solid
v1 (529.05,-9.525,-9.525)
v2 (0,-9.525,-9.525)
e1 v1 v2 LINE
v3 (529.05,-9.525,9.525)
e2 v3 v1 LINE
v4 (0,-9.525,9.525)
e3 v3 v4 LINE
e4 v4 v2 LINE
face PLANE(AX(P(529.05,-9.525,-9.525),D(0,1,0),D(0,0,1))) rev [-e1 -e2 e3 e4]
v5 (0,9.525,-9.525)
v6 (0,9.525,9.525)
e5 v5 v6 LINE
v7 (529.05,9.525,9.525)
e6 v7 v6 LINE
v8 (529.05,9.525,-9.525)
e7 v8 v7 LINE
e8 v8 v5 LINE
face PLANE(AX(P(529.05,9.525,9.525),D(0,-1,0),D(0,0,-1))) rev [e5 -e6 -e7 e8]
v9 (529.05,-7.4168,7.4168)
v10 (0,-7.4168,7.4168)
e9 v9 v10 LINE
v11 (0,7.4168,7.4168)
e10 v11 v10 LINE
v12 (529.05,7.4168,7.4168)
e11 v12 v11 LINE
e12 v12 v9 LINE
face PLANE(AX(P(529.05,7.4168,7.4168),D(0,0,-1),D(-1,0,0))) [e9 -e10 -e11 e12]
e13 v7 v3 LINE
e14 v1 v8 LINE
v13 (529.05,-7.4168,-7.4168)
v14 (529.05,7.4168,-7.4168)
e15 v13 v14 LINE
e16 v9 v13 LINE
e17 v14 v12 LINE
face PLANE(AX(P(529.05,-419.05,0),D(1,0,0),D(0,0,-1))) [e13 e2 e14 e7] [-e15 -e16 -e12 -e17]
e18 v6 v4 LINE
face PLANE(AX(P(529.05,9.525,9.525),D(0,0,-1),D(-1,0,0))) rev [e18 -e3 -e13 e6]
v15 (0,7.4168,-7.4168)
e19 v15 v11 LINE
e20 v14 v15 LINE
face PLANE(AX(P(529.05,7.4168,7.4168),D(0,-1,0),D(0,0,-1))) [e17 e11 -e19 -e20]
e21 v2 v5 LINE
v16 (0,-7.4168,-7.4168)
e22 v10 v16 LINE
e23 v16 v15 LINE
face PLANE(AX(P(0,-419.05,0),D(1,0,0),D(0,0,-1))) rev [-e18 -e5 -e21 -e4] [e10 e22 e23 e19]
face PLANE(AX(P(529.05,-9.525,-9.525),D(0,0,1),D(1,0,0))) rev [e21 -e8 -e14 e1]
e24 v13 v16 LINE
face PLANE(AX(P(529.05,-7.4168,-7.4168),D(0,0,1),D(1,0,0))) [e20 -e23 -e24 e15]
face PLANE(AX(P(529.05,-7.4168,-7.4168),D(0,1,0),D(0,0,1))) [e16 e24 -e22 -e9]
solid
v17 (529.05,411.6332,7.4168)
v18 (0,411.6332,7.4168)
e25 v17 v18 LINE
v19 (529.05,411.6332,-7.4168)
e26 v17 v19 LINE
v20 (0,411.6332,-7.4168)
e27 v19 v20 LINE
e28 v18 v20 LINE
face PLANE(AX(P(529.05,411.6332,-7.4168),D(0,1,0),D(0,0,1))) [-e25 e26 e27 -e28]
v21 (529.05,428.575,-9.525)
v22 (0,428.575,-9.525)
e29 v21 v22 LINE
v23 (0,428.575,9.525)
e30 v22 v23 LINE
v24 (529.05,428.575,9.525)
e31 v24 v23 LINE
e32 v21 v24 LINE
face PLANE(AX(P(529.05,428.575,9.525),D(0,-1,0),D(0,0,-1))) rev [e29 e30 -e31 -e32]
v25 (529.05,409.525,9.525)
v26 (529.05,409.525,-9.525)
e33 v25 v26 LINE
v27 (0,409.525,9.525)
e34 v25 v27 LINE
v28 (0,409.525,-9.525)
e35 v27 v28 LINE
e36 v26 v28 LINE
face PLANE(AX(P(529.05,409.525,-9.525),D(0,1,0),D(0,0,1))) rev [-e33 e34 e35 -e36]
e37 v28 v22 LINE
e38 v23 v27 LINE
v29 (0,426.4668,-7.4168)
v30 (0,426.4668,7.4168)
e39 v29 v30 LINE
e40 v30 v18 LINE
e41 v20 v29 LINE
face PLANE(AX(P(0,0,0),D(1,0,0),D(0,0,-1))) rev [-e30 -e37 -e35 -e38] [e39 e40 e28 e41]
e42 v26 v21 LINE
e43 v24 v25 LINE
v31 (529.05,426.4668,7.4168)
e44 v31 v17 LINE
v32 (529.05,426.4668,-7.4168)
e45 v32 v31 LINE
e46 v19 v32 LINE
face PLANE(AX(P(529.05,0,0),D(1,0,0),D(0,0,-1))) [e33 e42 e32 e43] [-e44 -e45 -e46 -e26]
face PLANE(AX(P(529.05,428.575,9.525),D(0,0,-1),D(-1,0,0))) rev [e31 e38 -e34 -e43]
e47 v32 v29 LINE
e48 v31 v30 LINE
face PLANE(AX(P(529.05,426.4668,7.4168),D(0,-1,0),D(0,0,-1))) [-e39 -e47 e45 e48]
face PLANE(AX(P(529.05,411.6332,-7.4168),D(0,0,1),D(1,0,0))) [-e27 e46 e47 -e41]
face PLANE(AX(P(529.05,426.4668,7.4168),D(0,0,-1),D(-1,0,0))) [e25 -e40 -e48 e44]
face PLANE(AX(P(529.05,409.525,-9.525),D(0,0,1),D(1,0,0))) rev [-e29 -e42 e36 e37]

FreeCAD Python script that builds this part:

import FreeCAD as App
import Part
import Sketcher
Q = App.Units.Quantity

doc = App.newDocument("Part")
body = doc.addObject("PartDesign::Body", "Body")

# Sketch on YZ plane
sketch1 = body.newObject("Sketcher::SketchObject", "Sketch")
sketch1.AttachmentSupport = (doc.getObject("YZ_Plane"), [""])
sketch1.MapMode = "FlatFace"
sketch1.addGeometry(Part.LineSegment(App.Vector(410, 10, 0), App.Vector(410, -10, 0)), False)
sketch1.addGeometry(Part.LineSegment(App.Vector(410, -10, 0), App.Vector(429, -10, 0)), False)
sketch1.addGeometry(Part.LineSegment(App.Vector(429, -10, 0), App.Vector(429, 10, 0)), False)
sketch1.addGeometry(Part.LineSegment(App.Vector(429, 10, 0), App.Vector(410, 10, 0)), False)
sketch1.addGeometry(Part.LineSegment(App.Vector(426, -7, 0), App.Vector(412, -7, 0)), False)
sketch1.addGeometry(Part.LineSegment(App.Vector(412, -7, 0), App.Vector(412, 7, 0)), False)
sketch1.addGeometry(Part.LineSegment(App.Vector(412, 7, 0), App.Vector(426, 7, 0)), False)
sketch1.addGeometry(Part.LineSegment(App.Vector(426, 7, 0), App.Vector(426, -7, 0)), False)
sketch1.addConstraint(Sketcher.Constraint("Coincident", 0, 2, 1, 1))
sketch1.addConstraint(Sketcher.Constraint("Coincident", 1, 2, 2, 1))
sketch1.addConstraint(Sketcher.Constraint("Coincident", 2, 2, 3, 1))
sketch1.addConstraint(Sketcher.Constraint("Coincident", 3, 2, 0, 1))
sketch1.addConstraint(Sketcher.Constraint("Coincident", 4, 2, 5, 1))
sketch1.addConstraint(Sketcher.Constraint("Coincident", 5, 2, 6, 1))
sketch1.addConstraint(Sketcher.Constraint("Coincident", 6, 2, 7, 1))
sketch1.addConstraint(Sketcher.Constraint("Coincident", 7, 2, 4, 1))
sketch1.addConstraint(Sketcher.Constraint("Vertical", 0))
sketch1.addConstraint(Sketcher.Constraint("Horizontal", 1))
sketch1.addConstraint(Sketcher.Constraint("Vertical", 2))
sketch1.addConstraint(Sketcher.Constraint("Horizontal", 3))
sketch1.addConstraint(Sketcher.Constraint("Horizontal", 4))
sketch1.addConstraint(Sketcher.Constraint("Vertical", 5))
sketch1.addConstraint(Sketcher.Constraint("Horizontal", 6))
sketch1.addConstraint(Sketcher.Constraint("Vertical", 7))
sketch1.addConstraint(Sketcher.Constraint("Equal", 3, 0))
sketch1.addConstraint(Sketcher.Constraint("Equal", 6, 5))
sketch1.addConstraint(Sketcher.Constraint("DistanceX", 1, 1, 1, 2, Q("0.75 in")))
sketch1.addConstraint(Sketcher.Constraint("DistanceX", 4, 2, 4, 1, Q("0.584 in")))
sketch1.addConstraint(Sketcher.Constraint("DistanceY", 0, 2, -1, 1, Q("0.375 in")))
sketch1.addConstraint(Sketcher.Constraint("DistanceY", 4, 2, -1, 1, Q("0.292 in")))
sketch1.addConstraint(Sketcher.Constraint("DistanceX", 0, 2, 4, 2, Q("0.083 in")))
sketch1.addConstraint(Sketcher.Constraint("DistanceX", -1, 1, 0, 2, 409.525))
pad1 = body.newObject("PartDesign::Pad", "Pad")
pad1.Profile = sketch1
pad1.Length = 529.05
body2 = doc.addObject("PartDesign::Body", "Body001")

# Sketch on YZ plane
sketch2 = body2.newObject("Sketcher::SketchObject", "Sketch001")
sketch2.AttachmentSupport = (doc.getObject("YZ_Plane001"), [""])
sketch2.MapMode = "FlatFace"
sketch2.addGeometry(Part.LineSegment(App.Vector(-10, 10, 0), App.Vector(-10, -10, 0)), False)
sketch2.addGeometry(Part.LineSegment(App.Vector(-10, -10, 0), App.Vector(10, -10, 0)), False)
sketch2.addGeometry(Part.LineSegment(App.Vector(10, -10, 0), App.Vector(10, 10, 0)), False)
sketch2.addGeometry(Part.LineSegment(App.Vector(10, 10, 0), App.Vector(-10, 10, 0)), False)
sketch2.addGeometry(Part.LineSegment(App.Vector(7, -7, 0), App.Vector(-7, -7, 0)), False)
sketch2.addGeometry(Part.LineSegment(App.Vector(-7, -7, 0), App.Vector(-7, 7, 0)), False)
sketch2.addGeometry(Part.LineSegment(App.Vector(-7, 7, 0), App.Vector(7, 7, 0)), False)
sketch2.addGeometry(Part.LineSegment(App.Vector(7, 7, 0), App.Vector(7, -7, 0)), False)
sketch2.addConstraint(Sketcher.Constraint("Coincident", 0, 2, 1, 1))
sketch2.addConstraint(Sketcher.Constraint("Coincident", 1, 2, 2, 1))
sketch2.addConstraint(Sketcher.Constraint("Coincident", 2, 2, 3, 1))
sketch2.addConstraint(Sketcher.Constraint("Coincident", 3, 2, 0, 1))
sketch2.addConstraint(Sketcher.Constraint("Coincident", 4, 2, 5, 1))
sketch2.addConstraint(Sketcher.Constraint("Coincident", 5, 2, 6, 1))
sketch2.addConstraint(Sketcher.Constraint("Coincident", 6, 2, 7, 1))
sketch2.addConstraint(Sketcher.Constraint("Coincident", 7, 2, 4, 1))
sketch2.addConstraint(Sketcher.Constraint("Vertical", 0))
sketch2.addConstraint(Sketcher.Constraint("Horizontal", 1))
sketch2.addConstraint(Sketcher.Constraint("Vertical", 2))
sketch2.addConstraint(Sketcher.Constraint("Horizontal", 3))
sketch2.addConstraint(Sketcher.Constraint("Horizontal", 4))
sketch2.addConstraint(Sketcher.Constraint("Vertical", 5))
sketch2.addConstraint(Sketcher.Constraint("Horizontal", 6))
sketch2.addConstraint(Sketcher.Constraint("Vertical", 7))
sketch2.addConstraint(Sketcher.Constraint("Symmetric", 0, 2, 2, 2, -1, 1))
sketch2.addConstraint(Sketcher.Constraint("Symmetric", 4, 2, 6, 2, -1, 1))
sketch2.addConstraint(Sketcher.Constraint("Equal", 3, 0))
sketch2.addConstraint(Sketcher.Constraint("Equal", 6, 5))
sketch2.addConstraint(Sketcher.Constraint("DistanceX", 1, 1, 1, 2, Q("0.75 in")))
sketch2.addConstraint(Sketcher.Constraint("DistanceX", 4, 2, 4, 1, Q("0.584 in")))
pad2 = body2.newObject("PartDesign::Pad", "Pad001")
pad2.Profile = sketch2
pad2.Length = 529.05

doc.recompute()
